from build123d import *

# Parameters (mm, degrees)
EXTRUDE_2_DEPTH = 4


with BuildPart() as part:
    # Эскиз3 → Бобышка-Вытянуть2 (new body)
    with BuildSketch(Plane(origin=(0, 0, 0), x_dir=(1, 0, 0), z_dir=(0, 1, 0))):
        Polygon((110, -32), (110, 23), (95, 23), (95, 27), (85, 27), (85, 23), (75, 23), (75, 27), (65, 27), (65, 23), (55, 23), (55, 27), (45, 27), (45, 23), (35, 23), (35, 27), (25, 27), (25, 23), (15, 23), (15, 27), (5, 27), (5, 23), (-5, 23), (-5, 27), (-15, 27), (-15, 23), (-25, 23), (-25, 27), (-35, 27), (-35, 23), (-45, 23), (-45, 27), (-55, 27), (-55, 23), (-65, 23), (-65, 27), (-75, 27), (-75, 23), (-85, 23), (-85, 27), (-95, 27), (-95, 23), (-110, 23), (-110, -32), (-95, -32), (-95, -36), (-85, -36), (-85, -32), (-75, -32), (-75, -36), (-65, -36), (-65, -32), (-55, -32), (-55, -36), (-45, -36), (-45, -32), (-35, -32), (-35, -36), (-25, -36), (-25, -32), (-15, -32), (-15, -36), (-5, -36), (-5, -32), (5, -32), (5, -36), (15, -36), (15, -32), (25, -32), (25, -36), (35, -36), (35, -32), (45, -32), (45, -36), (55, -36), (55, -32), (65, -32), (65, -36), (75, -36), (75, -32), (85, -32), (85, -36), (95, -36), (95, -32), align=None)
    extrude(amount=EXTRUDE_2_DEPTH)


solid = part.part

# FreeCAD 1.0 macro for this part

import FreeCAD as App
import Part
import Sketcher
Q = App.Units.Quantity

doc = App.newDocument("Part")
body = doc.addObject("PartDesign::Body", "Body")

sketch1 = doc.addObject("Sketcher::SketchObject", "Sketch")
body.addObject(sketch1)
sketch1.AttachmentSupport = (doc.XZ_Plane, [""])
sketch1.MapMode = "FlatFace"
sketch1.addGeometry([
    Part.LineSegment(App.Vector(110, 32, 0), App.Vector(110, -23, 0)),
    Part.LineSegment(App.Vector(110, -23, 0), App.Vector(95, -23, 0)),
    Part.LineSegment(App.Vector(95, -23, 0), App.Vector(95, -27, 0)),
    Part.LineSegment(App.Vector(95, -27, 0), App.Vector(85, -27, 0)),
    Part.LineSegment(App.Vector(85, -27, 0), App.Vector(85, -23, 0)),
    Part.LineSegment(App.Vector(85, -23, 0), App.Vector(75, -23, 0)),
    Part.LineSegment(App.Vector(75, -23, 0), App.Vector(75, -27, 0)),
    Part.LineSegment(App.Vector(75, -27, 0), App.Vector(65, -27, 0)),
    Part.LineSegment(App.Vector(65, -27, 0), App.Vector(65, -23, 0)),
    Part.LineSegment(App.Vector(65, -23, 0), App.Vector(55, -23, 0)),
    Part.LineSegment(App.Vector(55, -23, 0), App.Vector(55, -27, 0)),
    Part.LineSegment(App.Vector(55, -27, 0), App.Vector(45, -27, 0)),
    Part.LineSegment(App.Vector(45, -27, 0), App.Vector(45, -23, 0)),
    Part.LineSegment(App.Vector(45, -23, 0), App.Vector(35, -23, 0)),
    Part.LineSegment(App.Vector(35, -23, 0), App.Vector(35, -27, 0)),
    Part.LineSegment(App.Vector(35, -27, 0), App.Vector(25, -27, 0)),
    Part.LineSegment(App.Vector(25, -27, 0), App.Vector(25, -23, 0)),
    Part.LineSegment(App.Vector(25, -23, 0), App.Vector(15, -23, 0)),
    Part.LineSegment(App.Vector(15, -23, 0), App.Vector(15, -27, 0)),
    Part.LineSegment(App.Vector(15, -27, 0), App.Vector(5, -27, 0)),
    Part.LineSegment(App.Vector(5, -27, 0), App.Vector(5, -23, 0)),
    Part.LineSegment(App.Vector(5, -23, 0), App.Vector(-5, -23, 0)),
    Part.LineSegment(App.Vector(-5, -23, 0), App.Vector(-5, -27, 0)),
    Part.LineSegment(App.Vector(-5, -27, 0), App.Vector(-15, -27, 0)),
    Part.LineSegment(App.Vector(-15, -27, 0), App.Vector(-15, -23, 0)),
    Part.LineSegment(App.Vector(-15, -23, 0), App.Vector(-25, -23, 0)),
    Part.LineSegment(App.Vector(-25, -23, 0), App.Vector(-25, -27, 0)),
    Part.LineSegment(App.Vector(-25, -27, 0), App.Vector(-35, -27, 0)),
    Part.LineSegment(App.Vector(-35, -27, 0), App.Vector(-35, -23, 0)),
    Part.LineSegment(App.Vector(-35, -23, 0), App.Vector(-45, -23, 0)),
    Part.LineSegment(App.Vector(-45, -23, 0), App.Vector(-45, -27, 0)),
    Part.LineSegment(App.Vector(-45, -27, 0), App.Vector(-55, -27, 0)),
    Part.LineSegment(App.Vector(-55, -27, 0), App.Vector(-55, -23, 0)),
    Part.LineSegment(App.Vector(-55, -23, 0), App.Vector(-65, -23, 0)),
    Part.LineSegment(App.Vector(-65, -23, 0), App.Vector(-65, -27, 0)),
    Part.LineSegment(App.Vector(-65, -27, 0), App.Vector(-75, -27, 0)),
    Part.LineSegment(App.Vector(-75, -27, 0), App.Vector(-75, -23, 0)),
    Part.LineSegment(App.Vector(-75, -23, 0), App.Vector(-85, -23, 0)),
    Part.LineSegment(App.Vector(-85, -23, 0), App.Vector(-85, -27, 0)),
    Part.LineSegment(App.Vector(-85, -27, 0), App.Vector(-95, -27, 0)),
    Part.LineSegment(App.Vector(-95, -27, 0), App.Vector(-95, -23, 0)),
    Part.LineSegment(App.Vector(-95, -23, 0), App.Vector(-110, -23, 0)),
    Part.LineSegment(App.Vector(-110, -23, 0), App.Vector(-110, 32, 0)),
    Part.LineSegment(App.Vector(-110, 32, 0), App.Vector(-95, 32, 0)),
    Part.LineSegment(App.Vector(-95, 32, 0), App.Vector(-95, 36, 0)),
    Part.LineSegment(App.Vector(-95, 36, 0), App.Vector(-85, 36, 0)),
    Part.LineSegment(App.Vector(-85, 36, 0), App.Vector(-85, 32, 0)),
    Part.LineSegment(App.Vector(-85, 32, 0), App.Vector(-75, 32, 0)),
    Part.LineSegment(App.Vector(-75, 32, 0), App.Vector(-75, 36, 0)),
    Part.LineSegment(App.Vector(-75, 36, 0), App.Vector(-65, 36, 0)),
    Part.LineSegment(App.Vector(-65, 36, 0), App.Vector(-65, 32, 0)),
    Part.LineSegment(App.Vector(-65, 32, 0), App.Vector(-55, 32, 0)),
    Part.LineSegment(App.Vector(-55, 32, 0), App.Vector(-55, 36, 0)),
    Part.LineSegment(App.Vector(-55, 36, 0), App.Vector(-45, 36, 0)),
    Part.LineSegment(App.Vector(-45, 36, 0), App.Vector(-45, 32, 0)),
    Part.LineSegment(App.Vector(-45, 32, 0), App.Vector(-35, 32, 0)),
    Part.LineSegment(App.Vector(-35, 32, 0), App.Vector(-35, 36, 0)),
    Part.LineSegment(App.Vector(-35, 36, 0), App.Vector(-25, 36, 0)),
    Part.LineSegment(App.Vector(-25, 36, 0), App.Vector(-25, 32, 0)),
    Part.LineSegment(App.Vector(-25, 32, 0), App.Vector(-15, 32, 0)),
    Part.LineSegment(App.Vector(-15, 32, 0), App.Vector(-15, 36, 0)),
    Part.LineSegment(App.Vector(-15, 36, 0), App.Vector(-5, 36, 0)),
    Part.LineSegment(App.Vector(-5, 36, 0), App.Vector(-5, 32, 0)),
    Part.LineSegment(App.Vector(-5, 32, 0), App.Vector(5, 32, 0)),
    Part.LineSegment(App.Vector(5, 32, 0), App.Vector(5, 36, 0)),
    Part.LineSegment(App.Vector(5, 36, 0), App.Vector(15, 36, 0)),
    Part.LineSegment(App.Vector(15, 36, 0), App.Vector(15, 32, 0)),
    Part.LineSegment(App.Vector(15, 32, 0), App.Vector(25, 32, 0)),
    Part.LineSegment(App.Vector(25, 32, 0), App.Vector(25, 36, 0)),
    Part.LineSegment(App.Vector(25, 36, 0), App.Vector(35, 36, 0)),
    Part.LineSegment(App.Vector(35, 36, 0), App.Vector(35, 32, 0)),
    Part.LineSegment(App.Vector(35, 32, 0), App.Vector(45, 32, 0)),
    Part.LineSegment(App.Vector(45, 32, 0), App.Vector(45, 36, 0)),
    Part.LineSegment(App.Vector(45, 36, 0), App.Vector(55, 36, 0)),
    Part.LineSegment(App.Vector(55, 36, 0), App.Vector(55, 32, 0)),
    Part.LineSegment(App.Vector(55, 32, 0), App.Vector(65, 32, 0)),
    Part.LineSegment(App.Vector(65, 32, 0), App.Vector(65, 36, 0)),
    Part.LineSegment(App.Vector(65, 36, 0), App.Vector(75, 36, 0)),
    Part.LineSegment(App.Vector(75, 36, 0), App.Vector(75, 32, 0)),
    Part.LineSegment(App.Vector(75, 32, 0), App.Vector(85, 32, 0)),
    Part.LineSegment(App.Vector(85, 32, 0), App.Vector(85, 36, 0)),
    Part.LineSegment(App.Vector(85, 36, 0), App.Vector(95, 36, 0)),
    Part.LineSegment(App.Vector(95, 36, 0), App.Vector(95, 32, 0)),
    Part.LineSegment(App.Vector(95, 32, 0), App.Vector(110, 32, 0)),
], False)
sketch1.addConstraint([
    Sketcher.Constraint("Coincident", 0, 2, 1, 1),
    Sketcher.Constraint("Coincident", 1, 2, 2, 1),
    Sketcher.Constraint("Coincident", 2, 2, 3, 1),
    Sketcher.Constraint("Coincident", 3, 2, 4, 1),
    Sketcher.Constraint("Coincident", 4, 2, 5, 1),
    Sketcher.Constraint("Coincident", 5, 2, 6, 1),
    Sketcher.Constraint("Coincident", 6, 2, 7, 1),
    Sketcher.Constraint("Coincident", 7, 2, 8, 1),
    Sketcher.Constraint("Coincident", 8, 2, 9, 1),
    Sketcher.Constraint("Coincident", 9, 2, 10, 1),
    Sketcher.Constraint("Coincident", 10, 2, 11, 1),
    Sketcher.Constraint("Coincident", 11, 2, 12, 1),
    Sketcher.Constraint("Coincident", 12, 2, 13, 1),
    Sketcher.Constraint("Coincident", 13, 2, 14, 1),
    Sketcher.Constraint("Coincident", 14, 2, 15, 1),
    Sketcher.Constraint("Coincident", 15, 2, 16, 1),
    Sketcher.Constraint("Coincident", 16, 2, 17, 1),
    Sketcher.Constraint("Coincident", 17, 2, 18, 1),
    Sketcher.Constraint("Coincident", 18, 2, 19, 1),
    Sketcher.Constraint("Coincident", 19, 2, 20, 1),
    Sketcher.Constraint("Coincident", 20, 2, 21, 1),
    Sketcher.Constraint("Coincident", 21, 2, 22, 1),
    Sketcher.Constraint("Coincident", 22, 2, 23, 1),
    Sketcher.Constraint("Coincident", 23, 2, 24, 1),
    Sketcher.Constraint("Coincident", 24, 2, 25, 1),
    Sketcher.Constraint("Coincident", 25, 2, 26, 1),
    Sketcher.Constraint("Coincident", 26, 2, 27, 1),
    Sketcher.Constraint("Coincident", 27, 2, 28, 1),
    Sketcher.Constraint("Coincident", 28, 2, 29, 1),
    Sketcher.Constraint("Coincident", 29, 2, 30, 1),
    Sketcher.Constraint("Coincident", 30, 2, 31, 1),
    Sketcher.Constraint("Coincident", 31, 2, 32, 1),
    Sketcher.Constraint("Coincident", 32, 2, 33, 1),
    Sketcher.Constraint("Coincident", 33, 2, 34, 1),
    Sketcher.Constraint("Coincident", 34, 2, 35, 1),
    Sketcher.Constraint("Coincident", 35, 2, 36, 1),
    Sketcher.Constraint("Coincident", 36, 2, 37, 1),
    Sketcher.Constraint("Coincident", 37, 2, 38, 1),
    Sketcher.Constraint("Coincident", 38, 2, 39, 1),
    Sketcher.Constraint("Coincident", 39, 2, 40, 1),
    Sketcher.Constraint("Coincident", 40, 2, 41, 1),
    Sketcher.Constraint("Coincident", 41, 2, 42, 1),
    Sketcher.Constraint("Coincident", 42, 2, 43, 1),
    Sketcher.Constraint("Coincident", 43, 2, 44, 1),
    Sketcher.Constraint("Coincident", 44, 2, 45, 1),
    Sketcher.Constraint("Coincident", 45, 2, 46, 1),
    Sketcher.Constraint("Coincident", 46, 2, 47, 1),
    Sketcher.Constraint("Coincident", 47, 2, 48, 1),
    Sketcher.Constraint("Coincident", 48, 2, 49, 1),
    Sketcher.Constraint("Coincident", 49, 2, 50, 1),
    Sketcher.Constraint("Coincident", 50, 2, 51, 1),
    Sketcher.Constraint("Coincident", 51, 2, 52, 1),
    Sketcher.Constraint("Coincident", 52, 2, 53, 1),
    Sketcher.Constraint("Coincident", 53, 2, 54, 1),
    Sketcher.Constraint("Coincident", 54, 2, 55, 1),
    Sketcher.Constraint("Coincident", 55, 2, 56, 1),
    Sketcher.Constraint("Coincident", 56, 2, 57, 1),
    Sketcher.Constraint("Coincident", 57, 2, 58, 1),
    Sketcher.Constraint("Coincident", 58, 2, 59, 1),
    Sketcher.Constraint("Coincident", 59, 2, 60, 1),
    Sketcher.Constraint("Coincident", 60, 2, 61, 1),
    Sketcher.Constraint("Coincident", 61, 2, 62, 1),
    Sketcher.Constraint("Coincident", 62, 2, 63, 1),
    Sketcher.Constraint("Coincident", 63, 2, 64, 1),
    Sketcher.Constraint("Coincident", 64, 2, 65, 1),
    Sketcher.Constraint("Coincident", 65, 2, 66, 1),
    Sketcher.Constraint("Coincident", 66, 2, 67, 1),
    Sketcher.Constraint("Coincident", 67, 2, 68, 1),
    Sketcher.Constraint("Coincident", 68, 2, 69, 1),
    Sketcher.Constraint("Coincident", 69, 2, 70, 1),
    Sketcher.Constraint("Coincident", 70, 2, 71, 1),
    Sketcher.Constraint("Coincident", 71, 2, 72, 1),
    Sketcher.Constraint("Coincident", 72, 2, 73, 1),
    Sketcher.Constraint("Coincident", 73, 2, 74, 1),
    Sketcher.Constraint("Coincident", 74, 2, 75, 1),
    Sketcher.Constraint("Coincident", 75, 2, 76, 1),
    Sketcher.Constraint("Coincident", 76, 2, 77, 1),
    Sketcher.Constraint("Coincident", 77, 2, 78, 1),
    Sketcher.Constraint("Coincident", 78, 2, 79, 1),
    Sketcher.Constraint("Coincident", 79, 2, 80, 1),
    Sketcher.Constraint("Coincident", 80, 2, 81, 1),
    Sketcher.Constraint("Coincident", 81, 2, 82, 1),
    Sketcher.Constraint("Coincident", 82, 2, 83, 1),
    Sketcher.Constraint("Coincident", 83, 2, 0, 1),
    Sketcher.Constraint("Vertical", 0),
    Sketcher.Constraint("Horizontal", 1),
    Sketcher.Constraint("Vertical", 2),
    Sketcher.Constraint("Horizontal", 3),
    Sketcher.Constraint("Vertical", 4),
    Sketcher.Constraint("Horizontal", 5),
    Sketcher.Constraint("Vertical", 6),
    Sketcher.Constraint("Horizontal", 7),
    Sketcher.Constraint("Vertical", 8),
    Sketcher.Constraint("Horizontal", 9),
    Sketcher.Constraint("Vertical", 10),
    Sketcher.Constraint("Horizontal", 11),
    Sketcher.Constraint("Vertical", 12),
    Sketcher.Constraint("Horizontal", 13),
    Sketcher.Constraint("Vertical", 14),
    Sketcher.Constraint("Horizontal", 15),
    Sketcher.Constraint("Vertical", 16),
    Sketcher.Constraint("Horizontal", 17),
    Sketcher.Constraint("Vertical", 18),
    Sketcher.Constraint("Horizontal", 19),
    Sketcher.Constraint("Vertical", 20),
    Sketcher.Constraint("Horizontal", 21),
    Sketcher.Constraint("Vertical", 22),
    Sketcher.Constraint("Horizontal", 23),
    Sketcher.Constraint("Vertical", 24),
    Sketcher.Constraint("Horizontal", 25),
    Sketcher.Constraint("Vertical", 26),
    Sketcher.Constraint("Horizontal", 27),
    Sketcher.Constraint("Vertical", 28),
    Sketcher.Constraint("Horizontal", 29),
    Sketcher.Constraint("Vertical", 30),
    Sketcher.Constraint("Horizontal", 31),
    Sketcher.Constraint("Vertical", 32),
    Sketcher.Constraint("Horizontal", 33),
    Sketcher.Constraint("Vertical", 34),
    Sketcher.Constraint("Horizontal", 35),
    Sketcher.Constraint("Vertical", 36),
    Sketcher.Constraint("Horizontal", 37),
    Sketcher.Constraint("Vertical", 38),
    Sketcher.Constraint("Horizontal", 39),
    Sketcher.Constraint("Vertical", 40),
    Sketcher.Constraint("Horizontal", 41),
    Sketcher.Constraint("Vertical", 42),
    Sketcher.Constraint("Horizontal", 43),
    Sketcher.Constraint("Vertical", 44),
    Sketcher.Constraint("Horizontal", 45),
    Sketcher.Constraint("Vertical", 46),
    Sketcher.Constraint("Horizontal", 47),
    Sketcher.Constraint("Vertical", 48),
    Sketcher.Constraint("Horizontal", 49),
    Sketcher.Constraint("Vertical", 50),
    Sketcher.Constraint("Horizontal", 51),
    Sketcher.Constraint("Vertical", 52),
    Sketcher.Constraint("Horizontal", 53),
    Sketcher.Constraint("Vertical", 54),
    Sketcher.Constraint("Horizontal", 55),
    Sketcher.Constraint("Vertical", 56),
    Sketcher.Constraint("Horizontal", 57),
    Sketcher.Constraint("Vertical", 58),
    Sketcher.Constraint("Horizontal", 59),
    Sketcher.Constraint("Vertical", 60),
    Sketcher.Constraint("Horizontal", 61),
    Sketcher.Constraint("Vertical", 62),
    Sketcher.Constraint("Horizontal", 63),
    Sketcher.Constraint("Vertical", 64),
    Sketcher.Constraint("Horizontal", 65),
    Sketcher.Constraint("Vertical", 66),
    Sketcher.Constraint("Horizontal", 67),
    Sketcher.Constraint("Vertical", 68),
    Sketcher.Constraint("Horizontal", 69),
    Sketcher.Constraint("Vertical", 70),
    Sketcher.Constraint("Horizontal", 71),
    Sketcher.Constraint("Vertical", 72),
    Sketcher.Constraint("Horizontal", 73),
    Sketcher.Constraint("Vertical", 74),
    Sketcher.Constraint("Horizontal", 75),
    Sketcher.Constraint("Vertical", 76),
    Sketcher.Constraint("Horizontal", 77),
    Sketcher.Constraint("Vertical", 78),
    Sketcher.Constraint("Horizontal", 79),
    Sketcher.Constraint("Vertical", 80),
    Sketcher.Constraint("Horizontal", 81),
    Sketcher.Constraint("Vertical", 82),
    Sketcher.Constraint("Horizontal", 83),
    Sketcher.Constraint("Symmetric", 19, 2, 22, 2, -2),
    Sketcher.Constraint("Symmetric", 17, 2, 24, 2, -2),
    Sketcher.Constraint("Symmetric", 15, 2, 26, 2, -2),
    Sketcher.Constraint("Symmetric", 13, 2, 28, 2, -2),
    Sketcher.Constraint("Symmetric", 11, 2, 30, 2, -2),
    Sketcher.Constraint("Symmetric", 9, 2, 32, 2, -2),
    Sketcher.Constraint("Symmetric", 7, 2, 34, 2, -2),
    Sketcher.Constraint("Symmetric", 5, 2, 36, 2, -2),
    Sketcher.Constraint("Symmetric", 3, 2, 38, 2, -2),
    Sketcher.Constraint("Symmetric", 1, 2, 40, 2, -2),
    Sketcher.Constraint("Symmetric", 61, 2, 64, 2, -2),
    Sketcher.Constraint("Symmetric", 59, 2, 66, 2, -2),
    Sketcher.Constraint("Symmetric", 57, 2, 68, 2, -2),
    Sketcher.Constraint("Symmetric", 55, 2, 70, 2, -2),
    Sketcher.Constraint("Symmetric", 53, 2, 72, 2, -2),
    Sketcher.Constraint("Symmetric", 51, 2, 74, 2, -2),
    Sketcher.Constraint("Symmetric", 49, 2, 76, 2, -2),
    Sketcher.Constraint("Symmetric", 47, 2, 78, 2, -2),
    Sketcher.Constraint("Symmetric", 45, 2, 80, 2, -2),
    Sketcher.Constraint("Symmetric", 43, 2, 82, 2, -2),
    Sketcher.Constraint("Horizontal", 1, 2, 4, 2),
    Sketcher.Constraint("Horizontal", 3, 2, 6, 2),
    Sketcher.Constraint("Horizontal", 5, 2, 8, 2),
    Sketcher.Constraint("Horizontal", 7, 2, 10, 2),
    Sketcher.Constraint("Horizontal", 9, 2, 12, 2),
    Sketcher.Constraint("Horizontal", 11, 2, 14, 2),
    Sketcher.Constraint("Horizontal", 13, 2, 16, 2),
    Sketcher.Constraint("Horizontal", 15, 2, 18, 2),
    Sketcher.Constraint("Horizontal", 17, 2, 20, 2),
    Sketcher.Constraint("Horizontal", 43, 2, 46, 2),
    Sketcher.Constraint("Horizontal", 45, 2, 48, 2),
    Sketcher.Constraint("Horizontal", 47, 2, 50, 2),
    Sketcher.Constraint("Horizontal", 49, 2, 52, 2),
    Sketcher.Constraint("Horizontal", 51, 2, 54, 2),
    Sketcher.Constraint("Horizontal", 53, 2, 56, 2),
    Sketcher.Constraint("Horizontal", 55, 2, 58, 2),
    Sketcher.Constraint("Horizontal", 57, 2, 60, 2),
    Sketcher.Constraint("Horizontal", 59, 2, 62, 2),
    Sketcher.Constraint("Vertical", 40, 2, 43, 2),
    Sketcher.Constraint("Vertical", 38, 2, 45, 2),
    Sketcher.Constraint("Vertical", 36, 2, 47, 2),
    Sketcher.Constraint("Vertical", 34, 2, 49, 2),
    Sketcher.Constraint("Vertical", 32, 2, 51, 2),
    Sketcher.Constraint("Vertical", 30, 2, 53, 2),
    Sketcher.Constraint("Vertical", 28, 2, 55, 2),
    Sketcher.Constraint("Vertical", 26, 2, 57, 2),
    Sketcher.Constraint("Vertical", 24, 2, 59, 2),
    Sketcher.Constraint("Vertical", 22, 2, 61, 2),
    Sketcher.Constraint("Equal", 3, 5),
    Sketcher.Constraint("Equal", 5, 7),
    Sketcher.Constraint("Equal", 7, 9),
    Sketcher.Constraint("Equal", 9, 11),
    Sketcher.Constraint("Equal", 11, 13),
    Sketcher.Constraint("Equal", 13, 15),
    Sketcher.Constraint("Equal", 15, 17),
    Sketcher.Constraint("Equal", 17, 19),
    Sketcher.Constraint("Equal", 19, 21),
    Sketcher.Constraint("Equal", 1, 41),
    Sketcher.Constraint("Equal", 40, 44),
    Sketcher.Constraint("DistanceX", 1, 2, 1, 1, Q("15 mm")),
    Sketcher.Constraint("DistanceX", 3, 2, 3, 1, Q("10 mm")),
    Sketcher.Constraint("DistanceY", 0, 2, 0, 1, Q("55 mm")),
    Sketcher.Constraint("DistanceY", 2, 2, 2, 1, Q("4 mm")),
    Sketcher.Constraint("DistanceY", 0, 2, -1, 1, Q("23 mm")),
])
pad1 = doc.addObject("PartDesign::Pad", "Pad")
body.addObject(pad1)
pad1.Profile = sketch1
pad1.Length = 4
pad1.Reversed = True

doc.recompute()
